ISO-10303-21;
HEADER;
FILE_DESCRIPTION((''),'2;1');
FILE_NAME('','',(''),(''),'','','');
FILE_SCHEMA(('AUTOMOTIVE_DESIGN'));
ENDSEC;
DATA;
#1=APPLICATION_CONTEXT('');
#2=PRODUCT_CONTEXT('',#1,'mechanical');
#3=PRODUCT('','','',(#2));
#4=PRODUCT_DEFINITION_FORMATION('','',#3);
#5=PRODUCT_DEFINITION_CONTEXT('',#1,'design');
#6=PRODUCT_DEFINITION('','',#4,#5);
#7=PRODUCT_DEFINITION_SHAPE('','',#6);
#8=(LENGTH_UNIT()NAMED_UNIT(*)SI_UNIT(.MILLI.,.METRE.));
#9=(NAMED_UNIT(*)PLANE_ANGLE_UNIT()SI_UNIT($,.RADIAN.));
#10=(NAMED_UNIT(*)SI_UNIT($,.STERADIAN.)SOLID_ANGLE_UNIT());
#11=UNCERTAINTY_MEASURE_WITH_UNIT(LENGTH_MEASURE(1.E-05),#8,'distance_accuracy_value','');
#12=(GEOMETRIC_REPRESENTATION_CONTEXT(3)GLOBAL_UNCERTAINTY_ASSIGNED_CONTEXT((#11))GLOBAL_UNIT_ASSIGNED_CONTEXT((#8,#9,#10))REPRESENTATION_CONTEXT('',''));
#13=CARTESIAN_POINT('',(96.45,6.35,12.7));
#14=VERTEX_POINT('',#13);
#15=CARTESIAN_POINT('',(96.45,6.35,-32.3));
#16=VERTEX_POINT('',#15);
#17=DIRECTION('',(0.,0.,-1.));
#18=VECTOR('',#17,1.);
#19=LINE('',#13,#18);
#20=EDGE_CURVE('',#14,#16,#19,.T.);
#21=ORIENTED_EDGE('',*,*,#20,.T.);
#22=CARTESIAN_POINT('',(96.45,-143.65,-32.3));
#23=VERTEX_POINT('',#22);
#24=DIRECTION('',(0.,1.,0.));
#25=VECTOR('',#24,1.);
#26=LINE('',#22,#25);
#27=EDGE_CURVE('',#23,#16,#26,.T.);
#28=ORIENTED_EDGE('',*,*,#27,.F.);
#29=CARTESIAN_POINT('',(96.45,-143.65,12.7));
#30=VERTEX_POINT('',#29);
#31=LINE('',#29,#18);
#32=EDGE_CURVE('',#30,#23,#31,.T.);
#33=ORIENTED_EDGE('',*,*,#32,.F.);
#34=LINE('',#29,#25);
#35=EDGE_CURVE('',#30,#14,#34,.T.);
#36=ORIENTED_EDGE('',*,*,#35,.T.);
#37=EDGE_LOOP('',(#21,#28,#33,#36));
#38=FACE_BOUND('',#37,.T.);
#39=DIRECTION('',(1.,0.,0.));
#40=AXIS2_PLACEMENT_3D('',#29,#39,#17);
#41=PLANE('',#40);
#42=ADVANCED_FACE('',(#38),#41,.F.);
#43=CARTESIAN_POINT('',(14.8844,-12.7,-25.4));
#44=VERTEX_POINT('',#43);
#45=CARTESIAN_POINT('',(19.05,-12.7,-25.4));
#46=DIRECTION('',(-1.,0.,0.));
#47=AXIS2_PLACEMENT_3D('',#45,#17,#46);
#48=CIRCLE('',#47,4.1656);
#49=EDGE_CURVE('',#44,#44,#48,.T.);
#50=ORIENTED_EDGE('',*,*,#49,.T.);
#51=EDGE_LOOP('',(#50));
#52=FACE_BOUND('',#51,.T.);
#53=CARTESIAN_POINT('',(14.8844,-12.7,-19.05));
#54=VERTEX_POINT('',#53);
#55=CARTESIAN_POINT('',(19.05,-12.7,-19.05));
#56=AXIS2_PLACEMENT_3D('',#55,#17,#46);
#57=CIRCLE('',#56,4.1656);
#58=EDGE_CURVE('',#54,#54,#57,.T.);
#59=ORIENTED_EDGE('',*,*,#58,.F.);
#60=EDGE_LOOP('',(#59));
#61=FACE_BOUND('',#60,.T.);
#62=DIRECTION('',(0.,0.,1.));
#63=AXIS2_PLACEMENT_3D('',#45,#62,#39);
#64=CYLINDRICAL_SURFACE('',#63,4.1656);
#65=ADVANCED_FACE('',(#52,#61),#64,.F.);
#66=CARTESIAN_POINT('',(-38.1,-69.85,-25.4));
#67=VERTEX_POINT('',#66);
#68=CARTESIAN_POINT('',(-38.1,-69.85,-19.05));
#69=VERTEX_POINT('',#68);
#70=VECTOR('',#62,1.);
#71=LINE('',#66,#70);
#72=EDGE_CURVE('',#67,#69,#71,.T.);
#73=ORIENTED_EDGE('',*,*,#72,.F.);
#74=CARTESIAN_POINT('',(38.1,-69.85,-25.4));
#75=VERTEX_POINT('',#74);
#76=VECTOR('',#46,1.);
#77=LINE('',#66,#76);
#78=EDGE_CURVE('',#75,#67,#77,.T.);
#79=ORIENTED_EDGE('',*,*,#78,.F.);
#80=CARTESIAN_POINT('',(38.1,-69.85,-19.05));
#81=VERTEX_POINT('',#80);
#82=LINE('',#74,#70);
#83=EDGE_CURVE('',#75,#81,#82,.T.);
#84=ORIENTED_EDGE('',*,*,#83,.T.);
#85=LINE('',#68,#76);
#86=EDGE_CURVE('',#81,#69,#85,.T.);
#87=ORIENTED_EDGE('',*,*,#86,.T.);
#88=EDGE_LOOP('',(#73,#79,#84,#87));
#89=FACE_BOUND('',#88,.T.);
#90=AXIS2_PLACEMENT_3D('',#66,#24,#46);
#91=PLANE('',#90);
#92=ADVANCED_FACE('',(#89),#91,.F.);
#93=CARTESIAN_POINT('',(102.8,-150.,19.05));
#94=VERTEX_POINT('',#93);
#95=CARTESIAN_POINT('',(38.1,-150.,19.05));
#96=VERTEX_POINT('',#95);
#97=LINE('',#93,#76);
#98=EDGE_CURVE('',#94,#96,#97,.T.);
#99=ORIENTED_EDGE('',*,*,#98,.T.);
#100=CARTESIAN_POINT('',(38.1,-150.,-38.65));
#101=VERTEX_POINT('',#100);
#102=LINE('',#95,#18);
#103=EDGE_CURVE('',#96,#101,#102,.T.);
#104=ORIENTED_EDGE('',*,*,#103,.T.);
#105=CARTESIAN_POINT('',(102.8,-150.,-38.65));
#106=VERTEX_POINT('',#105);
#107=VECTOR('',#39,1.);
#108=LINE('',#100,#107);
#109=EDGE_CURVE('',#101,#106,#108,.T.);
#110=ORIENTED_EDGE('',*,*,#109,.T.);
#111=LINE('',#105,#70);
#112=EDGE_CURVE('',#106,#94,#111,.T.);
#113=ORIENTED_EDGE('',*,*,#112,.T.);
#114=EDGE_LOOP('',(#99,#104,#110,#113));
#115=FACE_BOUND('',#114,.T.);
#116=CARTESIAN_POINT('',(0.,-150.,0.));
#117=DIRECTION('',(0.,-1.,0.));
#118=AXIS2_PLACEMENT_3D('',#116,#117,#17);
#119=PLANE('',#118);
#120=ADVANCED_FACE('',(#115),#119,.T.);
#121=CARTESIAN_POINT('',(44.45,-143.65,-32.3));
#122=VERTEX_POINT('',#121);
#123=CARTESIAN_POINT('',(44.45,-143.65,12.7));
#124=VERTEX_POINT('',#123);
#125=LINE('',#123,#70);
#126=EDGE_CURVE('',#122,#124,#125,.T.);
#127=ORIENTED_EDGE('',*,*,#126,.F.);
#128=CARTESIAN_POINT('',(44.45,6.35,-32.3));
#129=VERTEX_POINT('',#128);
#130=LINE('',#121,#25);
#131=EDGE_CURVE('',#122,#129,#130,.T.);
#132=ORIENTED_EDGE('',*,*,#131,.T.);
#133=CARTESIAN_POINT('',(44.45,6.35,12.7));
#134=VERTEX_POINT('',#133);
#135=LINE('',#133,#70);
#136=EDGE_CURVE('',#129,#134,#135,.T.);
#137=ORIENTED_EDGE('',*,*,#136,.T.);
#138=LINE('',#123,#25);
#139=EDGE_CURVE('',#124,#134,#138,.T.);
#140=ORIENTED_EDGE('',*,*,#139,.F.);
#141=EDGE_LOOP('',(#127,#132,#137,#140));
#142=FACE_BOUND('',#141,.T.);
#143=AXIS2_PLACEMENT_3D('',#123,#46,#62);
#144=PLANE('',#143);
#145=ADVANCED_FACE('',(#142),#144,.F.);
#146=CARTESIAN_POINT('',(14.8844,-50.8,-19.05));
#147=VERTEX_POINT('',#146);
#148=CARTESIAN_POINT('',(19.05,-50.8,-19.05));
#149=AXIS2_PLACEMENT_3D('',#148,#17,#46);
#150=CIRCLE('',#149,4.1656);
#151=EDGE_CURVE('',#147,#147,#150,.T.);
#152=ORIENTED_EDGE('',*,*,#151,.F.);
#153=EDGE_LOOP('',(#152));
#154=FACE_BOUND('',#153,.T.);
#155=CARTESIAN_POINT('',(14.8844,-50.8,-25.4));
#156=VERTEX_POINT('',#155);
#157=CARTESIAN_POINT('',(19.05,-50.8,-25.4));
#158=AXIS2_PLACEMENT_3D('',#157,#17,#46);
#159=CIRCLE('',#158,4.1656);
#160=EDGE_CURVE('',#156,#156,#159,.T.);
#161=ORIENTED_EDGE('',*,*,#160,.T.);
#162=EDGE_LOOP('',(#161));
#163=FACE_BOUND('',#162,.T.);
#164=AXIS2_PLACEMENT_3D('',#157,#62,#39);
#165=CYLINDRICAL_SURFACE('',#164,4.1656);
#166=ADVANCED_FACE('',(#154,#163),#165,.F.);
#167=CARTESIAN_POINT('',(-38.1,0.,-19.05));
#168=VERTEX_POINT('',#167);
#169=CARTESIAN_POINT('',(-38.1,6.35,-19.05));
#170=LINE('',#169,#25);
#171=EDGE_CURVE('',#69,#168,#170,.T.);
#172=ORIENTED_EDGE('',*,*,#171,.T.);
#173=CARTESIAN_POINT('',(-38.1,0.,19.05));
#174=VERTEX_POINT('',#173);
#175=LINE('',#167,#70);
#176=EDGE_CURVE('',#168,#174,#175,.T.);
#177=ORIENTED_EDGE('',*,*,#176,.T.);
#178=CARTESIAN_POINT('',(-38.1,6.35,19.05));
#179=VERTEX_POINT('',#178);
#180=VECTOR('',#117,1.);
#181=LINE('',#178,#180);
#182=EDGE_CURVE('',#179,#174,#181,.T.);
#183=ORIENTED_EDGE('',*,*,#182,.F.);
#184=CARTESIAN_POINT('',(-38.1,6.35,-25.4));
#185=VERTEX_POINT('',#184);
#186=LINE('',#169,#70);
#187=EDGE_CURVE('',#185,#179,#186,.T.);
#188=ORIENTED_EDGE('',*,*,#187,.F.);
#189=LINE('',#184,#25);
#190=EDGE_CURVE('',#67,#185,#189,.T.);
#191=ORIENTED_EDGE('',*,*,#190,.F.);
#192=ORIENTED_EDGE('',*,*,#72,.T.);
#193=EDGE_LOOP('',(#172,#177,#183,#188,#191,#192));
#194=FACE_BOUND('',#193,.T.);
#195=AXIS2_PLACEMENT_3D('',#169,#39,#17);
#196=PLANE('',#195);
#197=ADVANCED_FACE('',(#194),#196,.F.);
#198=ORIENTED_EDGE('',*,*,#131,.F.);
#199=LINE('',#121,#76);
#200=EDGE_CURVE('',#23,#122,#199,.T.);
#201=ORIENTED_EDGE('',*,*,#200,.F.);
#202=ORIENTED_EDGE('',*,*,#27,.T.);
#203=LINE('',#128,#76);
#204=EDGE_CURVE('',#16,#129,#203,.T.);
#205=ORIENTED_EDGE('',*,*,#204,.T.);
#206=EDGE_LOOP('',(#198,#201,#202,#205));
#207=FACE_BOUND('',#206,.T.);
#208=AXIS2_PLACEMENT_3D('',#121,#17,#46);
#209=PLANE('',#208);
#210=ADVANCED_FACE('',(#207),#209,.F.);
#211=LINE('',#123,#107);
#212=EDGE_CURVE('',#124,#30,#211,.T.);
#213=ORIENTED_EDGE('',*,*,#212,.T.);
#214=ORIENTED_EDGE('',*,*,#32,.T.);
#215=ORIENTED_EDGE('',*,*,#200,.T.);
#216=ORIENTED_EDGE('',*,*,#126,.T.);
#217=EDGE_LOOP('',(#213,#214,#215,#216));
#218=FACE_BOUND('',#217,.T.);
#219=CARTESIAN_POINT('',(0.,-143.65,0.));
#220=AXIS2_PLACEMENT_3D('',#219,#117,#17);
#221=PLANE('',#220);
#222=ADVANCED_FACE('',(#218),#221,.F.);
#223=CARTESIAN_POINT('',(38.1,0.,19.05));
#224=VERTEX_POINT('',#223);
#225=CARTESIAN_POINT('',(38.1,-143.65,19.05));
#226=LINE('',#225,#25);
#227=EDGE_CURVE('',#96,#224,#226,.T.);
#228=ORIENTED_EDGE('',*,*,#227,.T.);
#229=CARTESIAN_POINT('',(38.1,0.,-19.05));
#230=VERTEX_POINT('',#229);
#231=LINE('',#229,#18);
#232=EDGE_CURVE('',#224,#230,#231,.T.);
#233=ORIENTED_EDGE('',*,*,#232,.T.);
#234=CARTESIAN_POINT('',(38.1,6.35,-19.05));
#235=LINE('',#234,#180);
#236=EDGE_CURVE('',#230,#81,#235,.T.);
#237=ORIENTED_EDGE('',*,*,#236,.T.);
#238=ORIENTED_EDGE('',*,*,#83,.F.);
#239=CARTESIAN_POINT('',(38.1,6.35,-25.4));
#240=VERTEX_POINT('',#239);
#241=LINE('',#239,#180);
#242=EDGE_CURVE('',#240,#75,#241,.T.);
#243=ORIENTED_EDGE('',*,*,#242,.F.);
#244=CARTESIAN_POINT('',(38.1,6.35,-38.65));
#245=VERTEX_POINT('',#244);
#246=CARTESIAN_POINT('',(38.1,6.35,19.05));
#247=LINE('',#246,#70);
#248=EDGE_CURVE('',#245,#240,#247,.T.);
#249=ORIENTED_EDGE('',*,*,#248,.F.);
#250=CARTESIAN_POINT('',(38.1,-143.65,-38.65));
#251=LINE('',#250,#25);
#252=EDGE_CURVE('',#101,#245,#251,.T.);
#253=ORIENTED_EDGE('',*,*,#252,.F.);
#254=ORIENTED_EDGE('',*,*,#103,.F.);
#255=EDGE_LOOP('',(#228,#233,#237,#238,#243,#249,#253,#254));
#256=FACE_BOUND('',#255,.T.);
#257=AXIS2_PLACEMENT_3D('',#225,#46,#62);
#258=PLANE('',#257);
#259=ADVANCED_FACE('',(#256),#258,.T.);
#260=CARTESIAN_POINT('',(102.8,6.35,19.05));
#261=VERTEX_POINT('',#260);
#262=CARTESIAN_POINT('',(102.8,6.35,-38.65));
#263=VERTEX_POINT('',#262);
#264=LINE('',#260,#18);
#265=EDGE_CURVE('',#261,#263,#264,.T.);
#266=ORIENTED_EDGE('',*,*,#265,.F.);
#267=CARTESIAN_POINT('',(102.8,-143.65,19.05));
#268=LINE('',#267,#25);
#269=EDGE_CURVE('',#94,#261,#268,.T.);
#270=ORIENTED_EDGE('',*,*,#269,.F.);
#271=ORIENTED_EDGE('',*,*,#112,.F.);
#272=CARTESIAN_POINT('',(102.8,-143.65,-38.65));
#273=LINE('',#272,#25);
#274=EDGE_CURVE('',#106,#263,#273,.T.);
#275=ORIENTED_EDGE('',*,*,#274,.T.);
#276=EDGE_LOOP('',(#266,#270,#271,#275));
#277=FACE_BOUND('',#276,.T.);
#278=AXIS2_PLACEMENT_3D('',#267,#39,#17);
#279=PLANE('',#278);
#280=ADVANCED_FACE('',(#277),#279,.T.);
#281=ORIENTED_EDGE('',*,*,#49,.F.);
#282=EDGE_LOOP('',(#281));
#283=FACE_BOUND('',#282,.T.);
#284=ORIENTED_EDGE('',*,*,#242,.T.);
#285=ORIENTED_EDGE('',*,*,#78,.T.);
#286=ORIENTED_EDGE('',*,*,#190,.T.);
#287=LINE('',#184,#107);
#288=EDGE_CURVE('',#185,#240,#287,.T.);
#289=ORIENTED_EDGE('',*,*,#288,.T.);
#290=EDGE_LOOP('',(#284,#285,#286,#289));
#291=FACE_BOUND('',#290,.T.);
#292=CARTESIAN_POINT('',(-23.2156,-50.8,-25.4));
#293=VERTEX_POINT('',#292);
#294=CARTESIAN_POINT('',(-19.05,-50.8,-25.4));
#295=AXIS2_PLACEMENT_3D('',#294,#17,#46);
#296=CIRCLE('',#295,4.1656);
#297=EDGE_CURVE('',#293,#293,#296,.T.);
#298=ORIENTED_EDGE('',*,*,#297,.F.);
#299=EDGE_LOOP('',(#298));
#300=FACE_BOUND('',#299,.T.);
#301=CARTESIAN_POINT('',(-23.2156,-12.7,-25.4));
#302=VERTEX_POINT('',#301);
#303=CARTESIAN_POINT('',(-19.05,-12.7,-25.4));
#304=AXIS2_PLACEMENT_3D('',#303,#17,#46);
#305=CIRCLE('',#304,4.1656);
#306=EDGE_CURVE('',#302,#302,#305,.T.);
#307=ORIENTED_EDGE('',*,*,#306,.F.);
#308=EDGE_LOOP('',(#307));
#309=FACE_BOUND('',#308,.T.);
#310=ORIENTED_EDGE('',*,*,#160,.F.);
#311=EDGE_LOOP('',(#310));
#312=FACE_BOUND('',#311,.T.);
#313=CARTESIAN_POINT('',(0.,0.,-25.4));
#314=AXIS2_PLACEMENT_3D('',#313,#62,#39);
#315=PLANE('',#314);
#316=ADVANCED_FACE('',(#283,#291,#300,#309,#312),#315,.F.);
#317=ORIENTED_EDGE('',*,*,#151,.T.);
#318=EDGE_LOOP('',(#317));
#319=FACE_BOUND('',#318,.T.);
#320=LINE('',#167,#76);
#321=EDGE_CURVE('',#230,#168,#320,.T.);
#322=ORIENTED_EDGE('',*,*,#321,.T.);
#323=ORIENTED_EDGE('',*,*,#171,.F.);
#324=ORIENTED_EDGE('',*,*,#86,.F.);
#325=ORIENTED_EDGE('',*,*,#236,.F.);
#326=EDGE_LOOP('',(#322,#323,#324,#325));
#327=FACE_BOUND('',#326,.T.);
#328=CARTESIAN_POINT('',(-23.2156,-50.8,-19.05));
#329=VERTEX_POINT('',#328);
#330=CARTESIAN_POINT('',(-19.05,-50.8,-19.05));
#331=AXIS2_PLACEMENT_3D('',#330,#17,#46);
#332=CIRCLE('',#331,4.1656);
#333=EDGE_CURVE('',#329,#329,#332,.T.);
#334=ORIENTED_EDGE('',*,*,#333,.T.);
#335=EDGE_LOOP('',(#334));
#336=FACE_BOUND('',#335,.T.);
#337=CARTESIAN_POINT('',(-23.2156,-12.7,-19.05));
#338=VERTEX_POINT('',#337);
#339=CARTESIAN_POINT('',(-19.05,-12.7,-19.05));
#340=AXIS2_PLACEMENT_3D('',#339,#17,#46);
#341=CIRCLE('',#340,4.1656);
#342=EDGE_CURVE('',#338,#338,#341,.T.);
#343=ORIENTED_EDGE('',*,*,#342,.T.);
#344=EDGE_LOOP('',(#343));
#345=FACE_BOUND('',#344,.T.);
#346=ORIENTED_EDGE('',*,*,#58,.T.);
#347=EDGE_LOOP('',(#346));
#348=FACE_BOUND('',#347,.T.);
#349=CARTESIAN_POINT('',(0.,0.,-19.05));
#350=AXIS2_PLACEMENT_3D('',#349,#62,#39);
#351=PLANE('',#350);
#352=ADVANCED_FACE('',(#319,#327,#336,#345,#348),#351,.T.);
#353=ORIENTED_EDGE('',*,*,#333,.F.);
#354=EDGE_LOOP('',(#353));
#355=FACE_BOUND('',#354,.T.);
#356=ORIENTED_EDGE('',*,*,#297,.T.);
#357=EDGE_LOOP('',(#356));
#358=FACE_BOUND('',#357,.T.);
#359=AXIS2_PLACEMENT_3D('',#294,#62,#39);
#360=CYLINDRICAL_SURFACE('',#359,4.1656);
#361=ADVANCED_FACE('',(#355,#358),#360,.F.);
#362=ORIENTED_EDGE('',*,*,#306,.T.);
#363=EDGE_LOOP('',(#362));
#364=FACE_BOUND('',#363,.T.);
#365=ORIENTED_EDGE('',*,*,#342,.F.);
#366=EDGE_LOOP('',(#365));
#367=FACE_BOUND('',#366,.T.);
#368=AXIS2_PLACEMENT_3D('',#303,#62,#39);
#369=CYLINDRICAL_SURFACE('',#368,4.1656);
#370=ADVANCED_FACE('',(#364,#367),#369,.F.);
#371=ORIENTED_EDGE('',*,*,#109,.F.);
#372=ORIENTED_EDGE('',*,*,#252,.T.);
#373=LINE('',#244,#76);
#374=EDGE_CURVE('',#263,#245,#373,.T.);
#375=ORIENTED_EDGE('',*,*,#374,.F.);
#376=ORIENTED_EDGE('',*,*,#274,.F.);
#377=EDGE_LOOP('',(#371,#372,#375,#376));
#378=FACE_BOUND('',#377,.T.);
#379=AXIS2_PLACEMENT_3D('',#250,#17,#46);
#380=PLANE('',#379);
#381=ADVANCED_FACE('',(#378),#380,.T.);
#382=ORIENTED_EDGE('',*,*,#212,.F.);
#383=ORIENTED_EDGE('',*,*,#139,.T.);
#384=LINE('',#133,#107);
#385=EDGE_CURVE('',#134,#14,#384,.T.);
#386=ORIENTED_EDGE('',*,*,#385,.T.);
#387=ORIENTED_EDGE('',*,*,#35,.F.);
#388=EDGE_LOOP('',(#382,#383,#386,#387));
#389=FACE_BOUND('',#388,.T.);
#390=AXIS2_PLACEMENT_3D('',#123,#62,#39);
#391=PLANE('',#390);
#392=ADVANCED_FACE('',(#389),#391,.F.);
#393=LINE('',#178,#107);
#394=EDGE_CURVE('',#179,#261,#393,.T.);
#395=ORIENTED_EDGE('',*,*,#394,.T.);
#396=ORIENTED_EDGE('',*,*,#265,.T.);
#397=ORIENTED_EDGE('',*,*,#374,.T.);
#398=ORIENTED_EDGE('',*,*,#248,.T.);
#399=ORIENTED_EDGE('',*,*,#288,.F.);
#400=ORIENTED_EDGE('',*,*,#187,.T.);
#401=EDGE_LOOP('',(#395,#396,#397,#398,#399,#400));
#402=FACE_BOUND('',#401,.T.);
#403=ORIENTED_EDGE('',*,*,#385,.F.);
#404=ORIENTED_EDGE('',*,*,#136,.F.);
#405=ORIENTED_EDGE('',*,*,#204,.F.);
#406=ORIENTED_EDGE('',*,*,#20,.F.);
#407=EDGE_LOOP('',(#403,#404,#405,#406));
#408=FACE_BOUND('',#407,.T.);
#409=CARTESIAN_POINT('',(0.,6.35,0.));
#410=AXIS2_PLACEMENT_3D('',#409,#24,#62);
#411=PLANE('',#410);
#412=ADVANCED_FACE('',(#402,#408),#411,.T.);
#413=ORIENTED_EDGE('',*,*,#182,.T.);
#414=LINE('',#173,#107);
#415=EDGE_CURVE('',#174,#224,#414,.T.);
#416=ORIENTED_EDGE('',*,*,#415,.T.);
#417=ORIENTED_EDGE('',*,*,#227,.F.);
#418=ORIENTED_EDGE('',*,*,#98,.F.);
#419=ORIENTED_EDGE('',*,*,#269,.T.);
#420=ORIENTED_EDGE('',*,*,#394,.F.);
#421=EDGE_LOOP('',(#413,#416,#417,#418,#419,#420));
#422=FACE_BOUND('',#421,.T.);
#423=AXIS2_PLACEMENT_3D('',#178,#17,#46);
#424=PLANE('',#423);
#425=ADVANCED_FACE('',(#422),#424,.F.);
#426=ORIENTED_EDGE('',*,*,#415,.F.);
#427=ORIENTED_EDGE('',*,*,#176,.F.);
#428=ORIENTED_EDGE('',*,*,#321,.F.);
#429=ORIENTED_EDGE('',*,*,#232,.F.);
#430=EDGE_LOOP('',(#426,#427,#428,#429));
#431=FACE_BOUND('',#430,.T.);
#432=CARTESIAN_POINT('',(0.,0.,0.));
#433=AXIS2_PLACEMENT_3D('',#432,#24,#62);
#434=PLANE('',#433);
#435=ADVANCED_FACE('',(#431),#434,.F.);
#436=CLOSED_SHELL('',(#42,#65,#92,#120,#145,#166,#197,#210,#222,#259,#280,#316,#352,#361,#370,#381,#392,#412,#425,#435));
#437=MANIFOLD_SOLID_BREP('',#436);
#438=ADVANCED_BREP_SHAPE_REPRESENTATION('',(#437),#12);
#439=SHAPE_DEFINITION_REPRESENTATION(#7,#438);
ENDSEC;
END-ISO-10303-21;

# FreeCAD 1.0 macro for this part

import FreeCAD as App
import Part
import Sketcher


def add_polygon(sketch, points):
    """Adds a closed chain of lines whose ends are joined by coincident constraints."""
    first, n = sketch.GeometryCount, len(points)
    for a, b in zip(points, points[1:] + points[:1]):
        sketch.addGeometry(Part.LineSegment(App.Vector(*a, 0), App.Vector(*b, 0)), False)
    for i in range(n):
        sketch.addConstraint(Sketcher.Constraint("Coincident", first + i, 2, first + (i + 1) % n, 1))

doc = App.newDocument("Part")
body = doc.addObject("PartDesign::Body", "Body")

sketch1 = body.newObject("Sketcher::SketchObject", "Sketch")
sketch1.AttachmentSupport = (doc.getObject("XZ_Plane"), [""])
sketch1.MapMode = "FlatFace"
add_polygon(sketch1, [(-38, -19), (-38, 19), (38, 19), (38, -19)])
sketch1.addConstraint([
    Sketcher.Constraint("Vertical", 0),
    Sketcher.Constraint("Horizontal", 1),
    Sketcher.Constraint("Vertical", 2),
    Sketcher.Constraint("Horizontal", 3),
    Sketcher.Constraint("Symmetric", 0, 2, 2, 2, -1, 1),
    Sketcher.Constraint("DistanceX", 1, 1, 1, 2, 76.2),
    Sketcher.Constraint("DistanceY", 0, 1, 0, 2, 38.1),
])
pad1 = body.newObject("PartDesign::Pad", "Pad")
pad1.Profile = sketch1
pad1.Length = 6.35
pad1.Reversed = True

sketch2 = body.newObject("Sketcher::SketchObject", "Sketch001")
sketch2.AttachmentSupport = (doc.getObject("XY_Plane"), [""])
sketch2.MapMode = "FlatFace"
sketch2.AttachmentOffset = App.Placement(App.Vector(0, 0, -19.05), App.Rotation())
add_polygon(sketch2, [(38.1, 6.3), (38.1, -69.8), (-38.1, -69.8), (-38.1, 6.3)])
sketch2.addGeometry(Part.Circle(App.Vector(19.1, -50.8, 0), App.Vector(0, 0, 1), 4.2), False)
sketch2.addGeometry(Part.Circle(App.Vector(-19.1, -50.8, 0), App.Vector(0, 0, 1), 4.2), False)
sketch2.addGeometry(Part.Circle(App.Vector(19.1, -12.7, 0), App.Vector(0, 0, 1), 4.2), False)
sketch2.addGeometry(Part.Circle(App.Vector(-19.1, -12.7, 0), App.Vector(0, 0, 1), 4.2), False)
sketch2.addConstraint([
    Sketcher.Constraint("Vertical", 0),
    Sketcher.Constraint("Horizontal", 1),
    Sketcher.Constraint("Vertical", 2),
    Sketcher.Constraint("Horizontal", 3),
    Sketcher.Constraint("Equal", 4, 5),
    Sketcher.Constraint("Equal", 5, 6),
    Sketcher.Constraint("Equal", 6, 7),
    Sketcher.Constraint("Symmetric", 4, 3, 5, 3, -2),
    Sketcher.Constraint("Symmetric", 6, 3, 7, 3, -2),
    Sketcher.Constraint("Vertical", 4, 3, 6, 3),
    Sketcher.Constraint("Equal", 3, 0),
    Sketcher.Constraint("DistanceX", 1, 2, 1, 1, 76.2),
    Sketcher.Constraint("Diameter", 4, 8.3312),
    Sketcher.Constraint("DistanceY", 4, 3, -1, 1, 50.8),
    Sketcher.Constraint("DistanceY", 6, 3, -1, 1, 12.7),
    Sketcher.Constraint("DistanceX", -1, 1, 0, 2, 38.1),
    Sketcher.Constraint("DistanceX", 5, 3, 4, 3, 38.1),
    Sketcher.Constraint("DistanceY", 0, 2, -1, 1, 69.85),
])
pad2 = body.newObject("PartDesign::Pad", "Pad001")
pad2.Profile = sketch2
pad2.Length = 6.35
pad2.Reversed = True

sketch3 = body.newObject("Sketcher::SketchObject", "Sketch002")
sketch3.AttachmentSupport = (doc.getObject("XZ_Plane"), [""])
sketch3.MapMode = "FlatFace"
sketch3.AttachmentOffset = App.Placement(App.Vector(0, 0, -6.35), App.Rotation())
add_polygon(sketch3, [(38, -39), (38, 19), (103, 19), (103, -39)])
add_polygon(sketch3, [(96, 13), (44, 13), (44, -32), (96, -32)])
sketch3.addConstraint([
    Sketcher.Constraint("Vertical", 0),
    Sketcher.Constraint("Horizontal", 1),
    Sketcher.Constraint("Vertical", 2),
    Sketcher.Constraint("Horizontal", 3),
    Sketcher.Constraint("Horizontal", 4),
    Sketcher.Constraint("Vertical", 5),
    Sketcher.Constraint("Horizontal", 6),
    Sketcher.Constraint("Vertical", 7),
    Sketcher.Constraint("DistanceX", 4, 2, 4, 1, 52.0),
    Sketcher.Constraint("DistanceY", 5, 2, 5, 1, 45.0),
    Sketcher.Constraint("DistanceX", 1, 1, 1, 2, 64.7),
    Sketcher.Constraint("DistanceY", 0, 1, 0, 2, 57.7),
    Sketcher.Constraint("DistanceX", -1, 1, 0, 2, 38.1),
    Sketcher.Constraint("DistanceY", -1, 1, 4, 2, 12.7),
    Sketcher.Constraint("DistanceY", -1, 1, 0, 2, 19.05),
    Sketcher.Constraint("DistanceX", -1, 1, 4, 2, 44.45),
])
pad3 = body.newObject("PartDesign::Pad", "Pad002")
pad3.Profile = sketch3
pad3.Length = 150

sketch4 = body.newObject("Sketcher::SketchObject", "Sketch003")
sketch4.AttachmentSupport = (doc.getObject("XZ_Plane"), [""])
sketch4.MapMode = "FlatFace"
sketch4.AttachmentOffset = App.Placement(App.Vector(0, 0, 143.65), App.Rotation())
add_polygon(sketch4, [(38, 19), (38, -39), (103, -39), (103, 19)])
sketch4.addConstraint([
    Sketcher.Constraint("Vertical", 0),
    Sketcher.Constraint("Horizontal", 1),
    Sketcher.Constraint("Vertical", 2),
    Sketcher.Constraint("Horizontal", 3),
    Sketcher.Constraint("DistanceX", 1, 1, 1, 2, 64.7),
    Sketcher.Constraint("DistanceY", 0, 2, 0, 1, 57.7),
    Sketcher.Constraint("DistanceX", -1, 1, 0, 2, 38.1),
    Sketcher.Constraint("DistanceY", 0, 2, -1, 1, 38.65),
])
pad4 = body.newObject("PartDesign::Pad", "Pad003")
pad4.Profile = sketch4
pad4.Length = 6.35

doc.recompute()
